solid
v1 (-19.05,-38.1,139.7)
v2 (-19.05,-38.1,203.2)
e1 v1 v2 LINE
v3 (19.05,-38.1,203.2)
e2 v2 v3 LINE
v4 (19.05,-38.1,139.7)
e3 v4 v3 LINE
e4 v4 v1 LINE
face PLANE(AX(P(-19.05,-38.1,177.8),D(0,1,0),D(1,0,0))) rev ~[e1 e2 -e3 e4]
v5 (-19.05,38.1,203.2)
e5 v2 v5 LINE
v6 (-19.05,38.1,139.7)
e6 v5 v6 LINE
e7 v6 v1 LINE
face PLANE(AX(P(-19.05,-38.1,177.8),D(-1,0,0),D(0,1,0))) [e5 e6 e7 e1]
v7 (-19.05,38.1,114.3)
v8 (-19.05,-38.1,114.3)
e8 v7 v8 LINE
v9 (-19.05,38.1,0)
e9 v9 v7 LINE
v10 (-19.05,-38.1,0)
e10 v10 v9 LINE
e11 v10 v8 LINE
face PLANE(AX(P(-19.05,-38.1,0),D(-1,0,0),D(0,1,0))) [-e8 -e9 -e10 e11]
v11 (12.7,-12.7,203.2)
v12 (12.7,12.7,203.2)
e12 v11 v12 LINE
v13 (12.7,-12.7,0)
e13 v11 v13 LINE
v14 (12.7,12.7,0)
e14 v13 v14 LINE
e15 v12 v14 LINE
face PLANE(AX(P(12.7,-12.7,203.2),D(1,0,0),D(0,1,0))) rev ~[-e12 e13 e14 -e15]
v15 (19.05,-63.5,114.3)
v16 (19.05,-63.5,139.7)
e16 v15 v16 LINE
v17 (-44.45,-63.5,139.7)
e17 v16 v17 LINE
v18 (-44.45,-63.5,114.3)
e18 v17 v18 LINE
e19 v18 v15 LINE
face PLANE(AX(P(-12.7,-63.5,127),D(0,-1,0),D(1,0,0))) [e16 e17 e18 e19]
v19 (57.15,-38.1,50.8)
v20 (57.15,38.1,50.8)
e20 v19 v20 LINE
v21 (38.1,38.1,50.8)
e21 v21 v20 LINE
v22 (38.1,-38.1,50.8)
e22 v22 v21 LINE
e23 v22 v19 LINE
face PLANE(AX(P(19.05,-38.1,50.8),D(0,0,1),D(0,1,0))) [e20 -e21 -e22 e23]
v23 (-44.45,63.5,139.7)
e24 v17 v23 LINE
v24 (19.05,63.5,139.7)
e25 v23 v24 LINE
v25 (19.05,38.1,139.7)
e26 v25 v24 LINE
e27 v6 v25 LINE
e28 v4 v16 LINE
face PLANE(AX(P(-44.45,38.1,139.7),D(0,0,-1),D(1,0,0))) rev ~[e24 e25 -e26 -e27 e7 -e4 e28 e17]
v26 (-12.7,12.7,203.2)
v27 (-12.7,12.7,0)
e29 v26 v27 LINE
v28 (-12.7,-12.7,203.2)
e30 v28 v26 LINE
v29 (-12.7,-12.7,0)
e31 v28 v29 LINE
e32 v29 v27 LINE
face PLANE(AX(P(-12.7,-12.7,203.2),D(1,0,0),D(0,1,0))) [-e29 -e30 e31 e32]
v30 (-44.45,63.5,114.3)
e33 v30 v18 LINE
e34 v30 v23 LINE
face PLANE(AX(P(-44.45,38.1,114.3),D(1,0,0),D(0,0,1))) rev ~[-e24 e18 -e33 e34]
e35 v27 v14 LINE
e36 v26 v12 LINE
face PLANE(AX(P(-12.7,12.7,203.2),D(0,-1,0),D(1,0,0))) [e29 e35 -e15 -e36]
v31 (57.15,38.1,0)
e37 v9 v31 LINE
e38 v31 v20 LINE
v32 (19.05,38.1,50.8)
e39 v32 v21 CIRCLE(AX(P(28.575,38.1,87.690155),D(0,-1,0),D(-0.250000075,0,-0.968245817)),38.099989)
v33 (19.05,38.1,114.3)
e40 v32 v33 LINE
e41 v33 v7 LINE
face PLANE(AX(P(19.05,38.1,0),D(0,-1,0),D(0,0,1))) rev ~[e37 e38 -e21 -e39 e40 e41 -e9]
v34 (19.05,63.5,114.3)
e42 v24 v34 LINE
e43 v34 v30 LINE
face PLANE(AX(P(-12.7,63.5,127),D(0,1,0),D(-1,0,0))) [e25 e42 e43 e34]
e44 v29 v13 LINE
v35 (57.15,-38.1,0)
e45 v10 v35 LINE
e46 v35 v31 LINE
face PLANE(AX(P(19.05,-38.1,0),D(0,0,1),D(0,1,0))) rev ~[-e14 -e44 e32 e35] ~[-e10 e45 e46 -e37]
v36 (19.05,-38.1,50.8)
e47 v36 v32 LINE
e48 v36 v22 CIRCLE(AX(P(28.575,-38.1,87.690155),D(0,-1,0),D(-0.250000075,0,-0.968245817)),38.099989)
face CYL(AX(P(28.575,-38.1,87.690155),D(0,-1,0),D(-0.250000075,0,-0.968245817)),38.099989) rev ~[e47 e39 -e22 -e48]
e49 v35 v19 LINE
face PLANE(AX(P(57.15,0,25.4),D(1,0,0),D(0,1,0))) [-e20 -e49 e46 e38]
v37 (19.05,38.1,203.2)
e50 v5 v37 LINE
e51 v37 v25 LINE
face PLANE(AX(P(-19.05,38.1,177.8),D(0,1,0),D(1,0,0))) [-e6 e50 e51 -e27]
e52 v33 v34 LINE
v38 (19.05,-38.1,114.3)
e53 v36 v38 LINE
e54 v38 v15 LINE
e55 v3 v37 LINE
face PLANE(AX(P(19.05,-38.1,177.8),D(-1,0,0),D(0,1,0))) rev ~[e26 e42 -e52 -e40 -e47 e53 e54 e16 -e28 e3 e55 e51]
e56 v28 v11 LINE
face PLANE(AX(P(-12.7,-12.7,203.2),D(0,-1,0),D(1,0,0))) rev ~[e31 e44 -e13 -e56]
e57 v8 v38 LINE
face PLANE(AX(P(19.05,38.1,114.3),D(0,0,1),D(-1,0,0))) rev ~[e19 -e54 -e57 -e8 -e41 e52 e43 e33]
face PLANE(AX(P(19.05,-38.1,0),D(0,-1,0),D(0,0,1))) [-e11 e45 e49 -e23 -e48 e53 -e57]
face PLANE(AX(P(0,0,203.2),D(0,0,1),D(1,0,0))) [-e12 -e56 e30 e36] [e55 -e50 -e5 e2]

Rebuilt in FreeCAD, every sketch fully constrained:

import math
import FreeCAD as App
import Part
import Sketcher
Q = App.Units.Quantity


def add_polygon(sketch, points):
    """Adds a closed chain of lines whose ends are joined by coincident constraints."""
    first, n = sketch.GeometryCount, len(points)
    for a, b in zip(points, points[1:] + points[:1]):
        sketch.addGeometry(Part.LineSegment(App.Vector(*a, 0), App.Vector(*b, 0)), False)
    for i in range(n):
        sketch.addConstraint(Sketcher.Constraint("Coincident", first + i, 2, first + (i + 1) % n, 1))

doc = App.newDocument("Part")
body = doc.addObject("PartDesign::Body", "Body")

# Sketch on XY plane
sketch1 = doc.addObject("Sketcher::SketchObject", "Sketch")
body.addObject(sketch1)
sketch1.AttachmentSupport = (doc.XY_Plane, [""])
sketch1.MapMode = "FlatFace"
add_polygon(sketch1, [(-19.05, 38.1), (-19.05, -38.1), (19.05, -38.1), (19.05, 38.1)])  # lines 0-3
sketch1.addConstraint([
    Sketcher.Constraint("Vertical", 0),
    Sketcher.Constraint("Horizontal", 1),
    Sketcher.Constraint("Vertical", 2),
    Sketcher.Constraint("Horizontal", 3),
    Sketcher.Constraint("Symmetric", 0, 2, 2, 2, -1, 1),
    Sketcher.Constraint("DistanceY", 0, 2, 0, 1, Q("3 in")),
    Sketcher.Constraint("DistanceX", 1, 1, 1, 2, Q("1.5 in")),
])
pad1 = doc.addObject("PartDesign::Pad", "Pad")
body.addObject(pad1)
pad1.Profile = sketch1
pad1.Length = Q("7 in")

# Sketch on YZ plane
sketch2 = doc.addObject("Sketcher::SketchObject", "Sketch001")
body.addObject(sketch2)
sketch2.AttachmentSupport = (doc.YZ_Plane, [""])
sketch2.MapMode = "FlatFace"
sketch2.AttachmentOffset = App.Placement(App.Vector(0, 0, -0.75 * 25.4), App.Rotation())
add_polygon(sketch2, [(38.1, 139.7), (38.1, 114.3), (-38.1, 114.3), (-38.1, 139.7)])  # lines 0-3
sketch2.addConstraint([
    Sketcher.Constraint("Vertical", 0),
    Sketcher.Constraint("Horizontal", 1),
    Sketcher.Constraint("Vertical", 2),
    Sketcher.Constraint("Horizontal", 3),
    Sketcher.Constraint("DistanceX", 1, 2, 1, 1, Q("3 in")),
    Sketcher.Constraint("DistanceY", 0, 2, 0, 1, Q("1 in")),
    Sketcher.Constraint("DistanceX", -1, 1, 0, 2, Q("1.5 in")),
    Sketcher.Constraint("DistanceY", -1, 1, 0, 2, Q("4.5 in")),
])
pad2 = doc.addObject("PartDesign::Pad", "Pad001")
body.addObject(pad2)
pad2.Profile = sketch2
pad2.Length = Q("1 in")
pad2.Reversed = True

# Sketch on XZ plane
sketch3 = doc.addObject("Sketcher::SketchObject", "Sketch002")
body.addObject(sketch3)
sketch3.AttachmentSupport = (doc.XZ_Plane, [""])
sketch3.MapMode = "FlatFace"
sketch3.AttachmentOffset = App.Placement(App.Vector(0, 0, 1.5 * 25.4), App.Rotation())
add_polygon(sketch3, [(-44.45, 139.7), (-44.45, 114.3), (19.05, 114.3), (19.05, 139.7)])  # lines 0-3
sketch3.addConstraint([
    Sketcher.Constraint("Vertical", 0),
    Sketcher.Constraint("Horizontal", 1),
    Sketcher.Constraint("Vertical", 2),
    Sketcher.Constraint("Horizontal", 3),
    Sketcher.Constraint("DistanceY", 0, 2, 0, 1, Q("1 in")),
    Sketcher.Constraint("DistanceX", 1, 1, 1, 2, Q("2.5 in")),
    Sketcher.Constraint("DistanceY", -1, 1, 0, 2, Q("4.5 in")),
    Sketcher.Constraint("DistanceX", 0, 2, -1, 1, Q("1.75 in")),
])
pad3 = doc.addObject("PartDesign::Pad", "Pad002")
body.addObject(pad3)
pad3.Profile = sketch3
pad3.Length = Q("1 in")

# Sketch on XZ plane
sketch4 = doc.addObject("Sketcher::SketchObject", "Sketch003")
body.addObject(sketch4)
sketch4.AttachmentSupport = (doc.XZ_Plane, [""])
sketch4.MapMode = "FlatFace"
sketch4.AttachmentOffset = App.Placement(App.Vector(0, 0, -1.5 * 25.4), App.Rotation())
add_polygon(sketch4, [(-44.45, 114.3), (-44.45, 139.7), (19.05, 139.7), (19.05, 114.3)])  # lines 0-3
sketch4.addConstraint([
    Sketcher.Constraint("Vertical", 0),
    Sketcher.Constraint("Horizontal", 1),
    Sketcher.Constraint("Vertical", 2),
    Sketcher.Constraint("Horizontal", 3),
    Sketcher.Constraint("DistanceY", 0, 1, 0, 2, Q("1 in")),
    Sketcher.Constraint("DistanceX", 1, 1, 1, 2, Q("2.5 in")),
    Sketcher.Constraint("DistanceY", -1, 1, 0, 2, Q("5.5 in")),
    Sketcher.Constraint("DistanceX", 0, 2, -1, 1, Q("1.75 in")),
])
pad4 = doc.addObject("PartDesign::Pad", "Pad003")
body.addObject(pad4)
pad4.Profile = sketch4
pad4.Length = Q("1 in")
pad4.Reversed = True

# Sketch on XY plane
sketch5 = doc.addObject("Sketcher::SketchObject", "Sketch004")
body.addObject(sketch5)
sketch5.AttachmentSupport = (doc.XY_Plane, [""])
sketch5.MapMode = "FlatFace"
sketch5.AttachmentOffset = App.Placement(App.Vector(0, 0, 7 * 25.4), App.Rotation())
add_polygon(sketch5, [(-19.05, 38.1), (-19.05, -38.1), (19.05, -38.1), (19.05, 38.1)])  # lines 0-3
sketch5.addConstraint([
    Sketcher.Constraint("Vertical", 0),
    Sketcher.Constraint("Horizontal", 1),
    Sketcher.Constraint("Vertical", 2),
    Sketcher.Constraint("Horizontal", 3),
    Sketcher.Constraint("Symmetric", 0, 2, 2, 2, -1, 1),
    Sketcher.Constraint("DistanceY", 0, 2, 0, 1, Q("3 in")),
    Sketcher.Constraint("DistanceX", 1, 1, 1, 2, Q("1.5 in")),
])
pad5 = doc.addObject("PartDesign::Pad", "Pad004")
body.addObject(pad5)
pad5.Profile = sketch5
pad5.Length = Q("1 in")

# Sketch on XY plane
sketch6 = doc.addObject("Sketcher::SketchObject", "Sketch005")
body.addObject(sketch6)
sketch6.AttachmentSupport = (doc.XY_Plane, [""])
sketch6.MapMode = "FlatFace"
sketch6.AttachmentOffset = App.Placement(App.Vector(0, 0, 8 * 25.4), App.Rotation())
add_polygon(sketch6, [(-12.7, 12.7), (-12.7, -12.7), (12.7, -12.7), (12.7, 12.7)])  # lines 0-3
sketch6.addConstraint([
    Sketcher.Constraint("Vertical", 0),
    Sketcher.Constraint("Horizontal", 1),
    Sketcher.Constraint("Vertical", 2),
    Sketcher.Constraint("Horizontal", 3),
    Sketcher.Constraint("Symmetric", 0, 2, 2, 2, -1, 1),
    Sketcher.Constraint("Equal", 3, 0),
    Sketcher.Constraint("DistanceX", 1, 1, 1, 2, Q("1 in")),
])
pocket1 = doc.addObject("PartDesign::Pocket", "Pocket")
body.addObject(pocket1)
pocket1.Profile = sketch6
pocket1.Length = Q("9 in")

# Sketch on YZ plane
sketch7 = doc.addObject("Sketcher::SketchObject", "Sketch006")
body.addObject(sketch7)
sketch7.AttachmentSupport = (doc.YZ_Plane, [""])
sketch7.MapMode = "FlatFace"
sketch7.AttachmentOffset = App.Placement(App.Vector(0, 0, 0.75 * 25.4), App.Rotation())
add_polygon(sketch7, [(-38.1, 50.8), (-38.1, 0), (38.1, 0), (38.1, 50.8)])  # lines 0-3
sketch7.addConstraint([
    Sketcher.Constraint("Vertical", 0),
    Sketcher.Constraint("Horizontal", 1),
    Sketcher.Constraint("Vertical", 2),
    Sketcher.Constraint("Horizontal", 3),
    Sketcher.Constraint("Symmetric", 0, 2, 1, 2, -1, 1),
    Sketcher.Constraint("DistanceX", 1, 1, 1, 2, Q("3 in")),
    Sketcher.Constraint("DistanceY", 0, 2, 0, 1, Q("2 in")),
])
pad6 = doc.addObject("PartDesign::Pad", "Pad005")
body.addObject(pad6)
pad6.Profile = sketch7
pad6.Length = Q("1.5 in")

# Sketch on XZ plane
sketch8 = doc.addObject("Sketcher::SketchObject", "Sketch007")
body.addObject(sketch8)
sketch8.AttachmentSupport = (doc.XZ_Plane, [""])
sketch8.MapMode = "FlatFace"
sketch8.AttachmentOffset = App.Placement(App.Vector(0, 0, 1.5 * 25.4), App.Rotation())
sketch8.addGeometry([
    Part.LineSegment(App.Vector(38.1, 50.8, 0), App.Vector(19.05, 50.8, 0)),
    Part.ArcOfCircle(Part.Circle(App.Vector(28.575, 87.690155, 0), App.Vector(0, 0, 1), 38.099989), math.radians(-104.477517), math.radians(-75.522483)),
], False)
sketch8.addConstraint([
    Sketcher.Constraint("Coincident", 0, 1, 1, 2),
    Sketcher.Constraint("Coincident", 1, 1, 0, 2),
    Sketcher.Constraint("Horizontal", 0),
    Sketcher.Constraint("DistanceY", -1, 1, 0, 1, Q("2 in")),
    Sketcher.Constraint("DistanceX", 0, 2, 0, 1, Q("0.75 in")),
    Sketcher.Constraint("DistanceX", -1, 1, 0, 1, Q("1.5 in")),
    Sketcher.Constraint("Radius", 1, 38.099989),
])
pocket2 = doc.addObject("PartDesign::Pocket", "Pocket001")
body.addObject(pocket2)
pocket2.Profile = sketch8
pocket2.Length = Q("9 in")

doc.recompute()
